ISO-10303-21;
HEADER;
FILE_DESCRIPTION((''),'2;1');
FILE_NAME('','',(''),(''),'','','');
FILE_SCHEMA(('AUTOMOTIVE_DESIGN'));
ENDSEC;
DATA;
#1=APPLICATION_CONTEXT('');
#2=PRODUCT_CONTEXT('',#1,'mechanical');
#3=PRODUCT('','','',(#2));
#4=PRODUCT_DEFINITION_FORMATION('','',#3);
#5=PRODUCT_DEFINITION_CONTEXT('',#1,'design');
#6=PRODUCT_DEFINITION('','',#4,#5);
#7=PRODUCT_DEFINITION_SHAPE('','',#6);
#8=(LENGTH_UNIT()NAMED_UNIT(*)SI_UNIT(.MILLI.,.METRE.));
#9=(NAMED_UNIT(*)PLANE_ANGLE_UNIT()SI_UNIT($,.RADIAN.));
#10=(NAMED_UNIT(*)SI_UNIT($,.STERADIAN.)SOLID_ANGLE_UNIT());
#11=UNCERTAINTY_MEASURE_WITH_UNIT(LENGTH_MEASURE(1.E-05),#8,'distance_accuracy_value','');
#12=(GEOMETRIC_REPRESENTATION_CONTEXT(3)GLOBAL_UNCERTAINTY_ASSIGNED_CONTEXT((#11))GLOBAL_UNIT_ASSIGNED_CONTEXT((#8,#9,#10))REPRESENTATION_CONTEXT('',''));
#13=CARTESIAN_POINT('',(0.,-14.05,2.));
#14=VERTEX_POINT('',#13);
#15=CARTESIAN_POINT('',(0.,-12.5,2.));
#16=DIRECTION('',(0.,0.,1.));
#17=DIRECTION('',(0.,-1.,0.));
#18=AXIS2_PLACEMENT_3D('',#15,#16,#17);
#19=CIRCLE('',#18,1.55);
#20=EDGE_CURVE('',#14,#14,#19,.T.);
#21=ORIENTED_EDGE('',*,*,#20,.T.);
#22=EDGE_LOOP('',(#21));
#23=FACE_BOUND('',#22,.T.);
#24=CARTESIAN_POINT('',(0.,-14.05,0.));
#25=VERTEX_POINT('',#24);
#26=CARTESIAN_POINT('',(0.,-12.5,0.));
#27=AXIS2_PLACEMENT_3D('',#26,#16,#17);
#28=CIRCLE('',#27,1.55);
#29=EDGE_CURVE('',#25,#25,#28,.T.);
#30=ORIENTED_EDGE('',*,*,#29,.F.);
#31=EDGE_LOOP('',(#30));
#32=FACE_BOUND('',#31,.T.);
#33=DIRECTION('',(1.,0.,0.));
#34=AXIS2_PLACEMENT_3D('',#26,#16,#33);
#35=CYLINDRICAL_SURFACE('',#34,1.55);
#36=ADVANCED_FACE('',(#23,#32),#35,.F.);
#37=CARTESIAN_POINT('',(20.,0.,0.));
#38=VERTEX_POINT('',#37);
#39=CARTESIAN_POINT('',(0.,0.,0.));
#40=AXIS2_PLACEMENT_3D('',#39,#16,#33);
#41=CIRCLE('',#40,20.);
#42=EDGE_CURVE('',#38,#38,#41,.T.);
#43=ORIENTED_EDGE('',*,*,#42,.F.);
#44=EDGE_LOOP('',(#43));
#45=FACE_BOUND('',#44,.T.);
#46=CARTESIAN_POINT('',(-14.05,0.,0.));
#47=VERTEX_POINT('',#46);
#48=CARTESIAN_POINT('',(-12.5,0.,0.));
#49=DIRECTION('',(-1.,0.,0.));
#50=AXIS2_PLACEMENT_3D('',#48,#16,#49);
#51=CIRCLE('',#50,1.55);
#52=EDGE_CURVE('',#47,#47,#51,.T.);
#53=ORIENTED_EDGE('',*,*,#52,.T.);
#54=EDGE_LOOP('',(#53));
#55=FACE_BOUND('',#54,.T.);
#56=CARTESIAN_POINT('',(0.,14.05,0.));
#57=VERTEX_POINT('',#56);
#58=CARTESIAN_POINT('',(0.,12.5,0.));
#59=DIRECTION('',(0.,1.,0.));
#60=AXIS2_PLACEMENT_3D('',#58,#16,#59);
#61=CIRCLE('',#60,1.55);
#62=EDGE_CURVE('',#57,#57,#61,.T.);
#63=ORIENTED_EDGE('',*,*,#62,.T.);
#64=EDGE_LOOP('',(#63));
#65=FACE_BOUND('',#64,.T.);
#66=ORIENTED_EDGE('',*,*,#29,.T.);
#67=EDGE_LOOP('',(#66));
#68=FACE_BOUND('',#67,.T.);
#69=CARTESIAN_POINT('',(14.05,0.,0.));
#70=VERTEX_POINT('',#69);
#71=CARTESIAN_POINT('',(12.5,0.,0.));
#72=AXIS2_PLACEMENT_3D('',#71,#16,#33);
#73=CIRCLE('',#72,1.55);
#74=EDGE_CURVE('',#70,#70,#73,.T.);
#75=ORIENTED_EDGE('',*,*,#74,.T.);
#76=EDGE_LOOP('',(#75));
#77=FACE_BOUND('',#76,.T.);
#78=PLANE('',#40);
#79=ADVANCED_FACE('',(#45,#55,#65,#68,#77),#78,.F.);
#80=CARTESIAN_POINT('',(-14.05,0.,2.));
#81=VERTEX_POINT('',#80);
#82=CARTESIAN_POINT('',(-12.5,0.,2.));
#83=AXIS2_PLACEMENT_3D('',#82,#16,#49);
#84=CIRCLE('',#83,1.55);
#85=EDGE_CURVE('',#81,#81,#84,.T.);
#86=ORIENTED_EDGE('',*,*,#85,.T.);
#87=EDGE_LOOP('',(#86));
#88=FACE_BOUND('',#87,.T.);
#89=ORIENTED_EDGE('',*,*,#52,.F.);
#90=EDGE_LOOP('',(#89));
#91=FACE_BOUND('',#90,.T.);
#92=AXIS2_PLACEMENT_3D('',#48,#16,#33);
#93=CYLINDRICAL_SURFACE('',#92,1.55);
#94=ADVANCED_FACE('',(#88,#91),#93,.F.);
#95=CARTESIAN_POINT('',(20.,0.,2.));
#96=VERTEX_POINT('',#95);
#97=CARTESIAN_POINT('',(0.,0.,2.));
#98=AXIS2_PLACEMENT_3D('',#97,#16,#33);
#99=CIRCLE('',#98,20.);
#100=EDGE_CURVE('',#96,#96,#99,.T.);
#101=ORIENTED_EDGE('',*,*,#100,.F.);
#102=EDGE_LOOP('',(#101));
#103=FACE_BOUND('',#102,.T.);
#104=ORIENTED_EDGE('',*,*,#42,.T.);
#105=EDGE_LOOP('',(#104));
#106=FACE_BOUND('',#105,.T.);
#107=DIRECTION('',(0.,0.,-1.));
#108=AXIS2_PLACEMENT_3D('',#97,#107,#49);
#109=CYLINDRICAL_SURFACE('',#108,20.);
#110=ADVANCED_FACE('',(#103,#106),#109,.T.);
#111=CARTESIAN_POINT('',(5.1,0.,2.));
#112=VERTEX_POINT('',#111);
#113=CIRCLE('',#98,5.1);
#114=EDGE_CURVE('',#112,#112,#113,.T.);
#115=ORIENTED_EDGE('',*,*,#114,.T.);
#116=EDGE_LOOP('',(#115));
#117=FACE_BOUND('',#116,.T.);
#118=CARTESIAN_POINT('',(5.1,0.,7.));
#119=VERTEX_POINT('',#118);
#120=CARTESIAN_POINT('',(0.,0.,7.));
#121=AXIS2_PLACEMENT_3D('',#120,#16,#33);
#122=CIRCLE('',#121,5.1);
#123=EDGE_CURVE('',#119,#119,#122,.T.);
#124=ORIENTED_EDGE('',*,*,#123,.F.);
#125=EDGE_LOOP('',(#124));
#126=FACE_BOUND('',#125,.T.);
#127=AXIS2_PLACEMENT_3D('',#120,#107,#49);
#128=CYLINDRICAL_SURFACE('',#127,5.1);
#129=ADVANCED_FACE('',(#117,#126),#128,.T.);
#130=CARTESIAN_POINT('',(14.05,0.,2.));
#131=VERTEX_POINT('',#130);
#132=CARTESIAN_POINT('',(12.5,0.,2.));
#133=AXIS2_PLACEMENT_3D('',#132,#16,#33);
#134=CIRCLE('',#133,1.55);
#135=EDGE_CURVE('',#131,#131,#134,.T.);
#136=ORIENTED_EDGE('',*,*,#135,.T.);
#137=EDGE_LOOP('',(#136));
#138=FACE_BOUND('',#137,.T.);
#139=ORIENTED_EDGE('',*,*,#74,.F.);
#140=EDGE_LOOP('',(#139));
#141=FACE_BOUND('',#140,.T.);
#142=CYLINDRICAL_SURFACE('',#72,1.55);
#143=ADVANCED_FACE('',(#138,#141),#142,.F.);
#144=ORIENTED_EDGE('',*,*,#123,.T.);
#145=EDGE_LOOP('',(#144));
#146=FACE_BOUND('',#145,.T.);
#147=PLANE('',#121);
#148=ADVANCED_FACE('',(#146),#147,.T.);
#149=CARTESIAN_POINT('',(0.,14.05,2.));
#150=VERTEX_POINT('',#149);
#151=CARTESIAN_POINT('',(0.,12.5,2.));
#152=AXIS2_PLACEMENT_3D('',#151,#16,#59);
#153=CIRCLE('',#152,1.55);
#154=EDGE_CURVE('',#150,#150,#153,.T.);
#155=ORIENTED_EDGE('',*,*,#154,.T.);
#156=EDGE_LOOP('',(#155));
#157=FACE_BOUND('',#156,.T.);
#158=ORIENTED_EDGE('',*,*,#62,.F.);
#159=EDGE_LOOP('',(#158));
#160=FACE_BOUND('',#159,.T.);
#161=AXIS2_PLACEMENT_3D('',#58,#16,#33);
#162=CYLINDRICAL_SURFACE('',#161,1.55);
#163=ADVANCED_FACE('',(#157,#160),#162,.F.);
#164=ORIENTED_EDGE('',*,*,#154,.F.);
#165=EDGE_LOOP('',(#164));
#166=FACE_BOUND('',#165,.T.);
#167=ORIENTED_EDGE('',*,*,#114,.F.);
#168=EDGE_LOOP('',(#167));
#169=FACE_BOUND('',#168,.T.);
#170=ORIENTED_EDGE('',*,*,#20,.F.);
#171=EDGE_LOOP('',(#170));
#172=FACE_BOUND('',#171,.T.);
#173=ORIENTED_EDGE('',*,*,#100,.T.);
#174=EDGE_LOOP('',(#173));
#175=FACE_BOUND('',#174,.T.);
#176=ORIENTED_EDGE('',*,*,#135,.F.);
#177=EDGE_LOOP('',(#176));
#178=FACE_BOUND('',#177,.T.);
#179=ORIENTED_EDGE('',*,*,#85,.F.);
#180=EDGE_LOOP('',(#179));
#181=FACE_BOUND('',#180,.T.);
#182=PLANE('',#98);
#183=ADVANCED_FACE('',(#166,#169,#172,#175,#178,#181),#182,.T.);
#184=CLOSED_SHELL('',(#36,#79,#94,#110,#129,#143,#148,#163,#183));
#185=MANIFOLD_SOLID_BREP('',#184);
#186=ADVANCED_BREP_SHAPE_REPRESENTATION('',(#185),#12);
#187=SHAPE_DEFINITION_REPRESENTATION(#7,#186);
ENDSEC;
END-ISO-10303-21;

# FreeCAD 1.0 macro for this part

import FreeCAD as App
import Part
import Sketcher

V = App.Vector
Q = App.Units.Quantity

doc = App.newDocument("Part")
body = doc.addObject("PartDesign::Body", "Body")

# Sketch on XY plane
sketch1 = body.newObject("Sketcher::SketchObject", "Sketch")
sketch1.AttachmentSupport = (doc.getObject("XY_Plane"), [""])
sketch1.MapMode = "FlatFace"
sketch1.addGeometry(Part.Circle(V(0, 0, 0), V(0, 0, 1), 20), False)
sketch1.addConstraint(Sketcher.Constraint("Coincident", 0, 3, -1, 1))
sketch1.addConstraint(Sketcher.Constraint("Diameter", 0, Q("40 mm")))
pad1 = body.newObject("PartDesign::Pad", "Pad")
pad1.Profile = sketch1
pad1.Length = 2

# Sketch on XY plane
sketch2 = body.newObject("Sketcher::SketchObject", "Sketch001")
sketch2.AttachmentSupport = (doc.getObject("XY_Plane"), [""])
sketch2.MapMode = "FlatFace"
sketch2.AttachmentOffset = App.Placement(V(0, 0, 2), App.Rotation())
sketch2.addGeometry(Part.Circle(V(0, 0, 0), V(0, 0, 1), 5.1), False)
sketch2.addConstraint(Sketcher.Constraint("Coincident", 0, 3, -1, 1))
sketch2.addConstraint(Sketcher.Constraint("Diameter", 0, Q("10.2 mm")))
pad2 = body.newObject("PartDesign::Pad", "Pad001")
pad2.Profile = sketch2
pad2.Length = 5

# Sketch on XY plane
sketch3 = body.newObject("Sketcher::SketchObject", "Sketch002")
sketch3.AttachmentSupport = (doc.getObject("XY_Plane"), [""])
sketch3.MapMode = "FlatFace"
sketch3.AttachmentOffset = App.Placement(V(0, 0, 2), App.Rotation())
sketch3.addGeometry(Part.Circle(V(12.5, 0, 0), V(0, 0, 1), 1.55), False)
sketch3.addConstraint(Sketcher.Constraint("PointOnObject", 0, 3, -1))
sketch3.addConstraint(Sketcher.Constraint("Diameter", 0, Q("3.1 mm")))
sketch3.addConstraint(Sketcher.Constraint("DistanceX", -1, 1, 0, 3, Q("12.5 mm")))
pocket1 = body.newObject("PartDesign::Pocket", "Pocket")
pocket1.Profile = sketch3
pocket1.Type = "ThroughAll"
doc.recompute()

polarpattern = body.newObject("PartDesign::PolarPattern", "PolarPattern")
polarpattern.Originals = [pocket1]
polarpattern.Axis = (doc.getObject("Z_Axis"), [""])
polarpattern.Angle = 360
polarpattern.Occurrences = 4
body.Tip = polarpattern

doc.recompute()
